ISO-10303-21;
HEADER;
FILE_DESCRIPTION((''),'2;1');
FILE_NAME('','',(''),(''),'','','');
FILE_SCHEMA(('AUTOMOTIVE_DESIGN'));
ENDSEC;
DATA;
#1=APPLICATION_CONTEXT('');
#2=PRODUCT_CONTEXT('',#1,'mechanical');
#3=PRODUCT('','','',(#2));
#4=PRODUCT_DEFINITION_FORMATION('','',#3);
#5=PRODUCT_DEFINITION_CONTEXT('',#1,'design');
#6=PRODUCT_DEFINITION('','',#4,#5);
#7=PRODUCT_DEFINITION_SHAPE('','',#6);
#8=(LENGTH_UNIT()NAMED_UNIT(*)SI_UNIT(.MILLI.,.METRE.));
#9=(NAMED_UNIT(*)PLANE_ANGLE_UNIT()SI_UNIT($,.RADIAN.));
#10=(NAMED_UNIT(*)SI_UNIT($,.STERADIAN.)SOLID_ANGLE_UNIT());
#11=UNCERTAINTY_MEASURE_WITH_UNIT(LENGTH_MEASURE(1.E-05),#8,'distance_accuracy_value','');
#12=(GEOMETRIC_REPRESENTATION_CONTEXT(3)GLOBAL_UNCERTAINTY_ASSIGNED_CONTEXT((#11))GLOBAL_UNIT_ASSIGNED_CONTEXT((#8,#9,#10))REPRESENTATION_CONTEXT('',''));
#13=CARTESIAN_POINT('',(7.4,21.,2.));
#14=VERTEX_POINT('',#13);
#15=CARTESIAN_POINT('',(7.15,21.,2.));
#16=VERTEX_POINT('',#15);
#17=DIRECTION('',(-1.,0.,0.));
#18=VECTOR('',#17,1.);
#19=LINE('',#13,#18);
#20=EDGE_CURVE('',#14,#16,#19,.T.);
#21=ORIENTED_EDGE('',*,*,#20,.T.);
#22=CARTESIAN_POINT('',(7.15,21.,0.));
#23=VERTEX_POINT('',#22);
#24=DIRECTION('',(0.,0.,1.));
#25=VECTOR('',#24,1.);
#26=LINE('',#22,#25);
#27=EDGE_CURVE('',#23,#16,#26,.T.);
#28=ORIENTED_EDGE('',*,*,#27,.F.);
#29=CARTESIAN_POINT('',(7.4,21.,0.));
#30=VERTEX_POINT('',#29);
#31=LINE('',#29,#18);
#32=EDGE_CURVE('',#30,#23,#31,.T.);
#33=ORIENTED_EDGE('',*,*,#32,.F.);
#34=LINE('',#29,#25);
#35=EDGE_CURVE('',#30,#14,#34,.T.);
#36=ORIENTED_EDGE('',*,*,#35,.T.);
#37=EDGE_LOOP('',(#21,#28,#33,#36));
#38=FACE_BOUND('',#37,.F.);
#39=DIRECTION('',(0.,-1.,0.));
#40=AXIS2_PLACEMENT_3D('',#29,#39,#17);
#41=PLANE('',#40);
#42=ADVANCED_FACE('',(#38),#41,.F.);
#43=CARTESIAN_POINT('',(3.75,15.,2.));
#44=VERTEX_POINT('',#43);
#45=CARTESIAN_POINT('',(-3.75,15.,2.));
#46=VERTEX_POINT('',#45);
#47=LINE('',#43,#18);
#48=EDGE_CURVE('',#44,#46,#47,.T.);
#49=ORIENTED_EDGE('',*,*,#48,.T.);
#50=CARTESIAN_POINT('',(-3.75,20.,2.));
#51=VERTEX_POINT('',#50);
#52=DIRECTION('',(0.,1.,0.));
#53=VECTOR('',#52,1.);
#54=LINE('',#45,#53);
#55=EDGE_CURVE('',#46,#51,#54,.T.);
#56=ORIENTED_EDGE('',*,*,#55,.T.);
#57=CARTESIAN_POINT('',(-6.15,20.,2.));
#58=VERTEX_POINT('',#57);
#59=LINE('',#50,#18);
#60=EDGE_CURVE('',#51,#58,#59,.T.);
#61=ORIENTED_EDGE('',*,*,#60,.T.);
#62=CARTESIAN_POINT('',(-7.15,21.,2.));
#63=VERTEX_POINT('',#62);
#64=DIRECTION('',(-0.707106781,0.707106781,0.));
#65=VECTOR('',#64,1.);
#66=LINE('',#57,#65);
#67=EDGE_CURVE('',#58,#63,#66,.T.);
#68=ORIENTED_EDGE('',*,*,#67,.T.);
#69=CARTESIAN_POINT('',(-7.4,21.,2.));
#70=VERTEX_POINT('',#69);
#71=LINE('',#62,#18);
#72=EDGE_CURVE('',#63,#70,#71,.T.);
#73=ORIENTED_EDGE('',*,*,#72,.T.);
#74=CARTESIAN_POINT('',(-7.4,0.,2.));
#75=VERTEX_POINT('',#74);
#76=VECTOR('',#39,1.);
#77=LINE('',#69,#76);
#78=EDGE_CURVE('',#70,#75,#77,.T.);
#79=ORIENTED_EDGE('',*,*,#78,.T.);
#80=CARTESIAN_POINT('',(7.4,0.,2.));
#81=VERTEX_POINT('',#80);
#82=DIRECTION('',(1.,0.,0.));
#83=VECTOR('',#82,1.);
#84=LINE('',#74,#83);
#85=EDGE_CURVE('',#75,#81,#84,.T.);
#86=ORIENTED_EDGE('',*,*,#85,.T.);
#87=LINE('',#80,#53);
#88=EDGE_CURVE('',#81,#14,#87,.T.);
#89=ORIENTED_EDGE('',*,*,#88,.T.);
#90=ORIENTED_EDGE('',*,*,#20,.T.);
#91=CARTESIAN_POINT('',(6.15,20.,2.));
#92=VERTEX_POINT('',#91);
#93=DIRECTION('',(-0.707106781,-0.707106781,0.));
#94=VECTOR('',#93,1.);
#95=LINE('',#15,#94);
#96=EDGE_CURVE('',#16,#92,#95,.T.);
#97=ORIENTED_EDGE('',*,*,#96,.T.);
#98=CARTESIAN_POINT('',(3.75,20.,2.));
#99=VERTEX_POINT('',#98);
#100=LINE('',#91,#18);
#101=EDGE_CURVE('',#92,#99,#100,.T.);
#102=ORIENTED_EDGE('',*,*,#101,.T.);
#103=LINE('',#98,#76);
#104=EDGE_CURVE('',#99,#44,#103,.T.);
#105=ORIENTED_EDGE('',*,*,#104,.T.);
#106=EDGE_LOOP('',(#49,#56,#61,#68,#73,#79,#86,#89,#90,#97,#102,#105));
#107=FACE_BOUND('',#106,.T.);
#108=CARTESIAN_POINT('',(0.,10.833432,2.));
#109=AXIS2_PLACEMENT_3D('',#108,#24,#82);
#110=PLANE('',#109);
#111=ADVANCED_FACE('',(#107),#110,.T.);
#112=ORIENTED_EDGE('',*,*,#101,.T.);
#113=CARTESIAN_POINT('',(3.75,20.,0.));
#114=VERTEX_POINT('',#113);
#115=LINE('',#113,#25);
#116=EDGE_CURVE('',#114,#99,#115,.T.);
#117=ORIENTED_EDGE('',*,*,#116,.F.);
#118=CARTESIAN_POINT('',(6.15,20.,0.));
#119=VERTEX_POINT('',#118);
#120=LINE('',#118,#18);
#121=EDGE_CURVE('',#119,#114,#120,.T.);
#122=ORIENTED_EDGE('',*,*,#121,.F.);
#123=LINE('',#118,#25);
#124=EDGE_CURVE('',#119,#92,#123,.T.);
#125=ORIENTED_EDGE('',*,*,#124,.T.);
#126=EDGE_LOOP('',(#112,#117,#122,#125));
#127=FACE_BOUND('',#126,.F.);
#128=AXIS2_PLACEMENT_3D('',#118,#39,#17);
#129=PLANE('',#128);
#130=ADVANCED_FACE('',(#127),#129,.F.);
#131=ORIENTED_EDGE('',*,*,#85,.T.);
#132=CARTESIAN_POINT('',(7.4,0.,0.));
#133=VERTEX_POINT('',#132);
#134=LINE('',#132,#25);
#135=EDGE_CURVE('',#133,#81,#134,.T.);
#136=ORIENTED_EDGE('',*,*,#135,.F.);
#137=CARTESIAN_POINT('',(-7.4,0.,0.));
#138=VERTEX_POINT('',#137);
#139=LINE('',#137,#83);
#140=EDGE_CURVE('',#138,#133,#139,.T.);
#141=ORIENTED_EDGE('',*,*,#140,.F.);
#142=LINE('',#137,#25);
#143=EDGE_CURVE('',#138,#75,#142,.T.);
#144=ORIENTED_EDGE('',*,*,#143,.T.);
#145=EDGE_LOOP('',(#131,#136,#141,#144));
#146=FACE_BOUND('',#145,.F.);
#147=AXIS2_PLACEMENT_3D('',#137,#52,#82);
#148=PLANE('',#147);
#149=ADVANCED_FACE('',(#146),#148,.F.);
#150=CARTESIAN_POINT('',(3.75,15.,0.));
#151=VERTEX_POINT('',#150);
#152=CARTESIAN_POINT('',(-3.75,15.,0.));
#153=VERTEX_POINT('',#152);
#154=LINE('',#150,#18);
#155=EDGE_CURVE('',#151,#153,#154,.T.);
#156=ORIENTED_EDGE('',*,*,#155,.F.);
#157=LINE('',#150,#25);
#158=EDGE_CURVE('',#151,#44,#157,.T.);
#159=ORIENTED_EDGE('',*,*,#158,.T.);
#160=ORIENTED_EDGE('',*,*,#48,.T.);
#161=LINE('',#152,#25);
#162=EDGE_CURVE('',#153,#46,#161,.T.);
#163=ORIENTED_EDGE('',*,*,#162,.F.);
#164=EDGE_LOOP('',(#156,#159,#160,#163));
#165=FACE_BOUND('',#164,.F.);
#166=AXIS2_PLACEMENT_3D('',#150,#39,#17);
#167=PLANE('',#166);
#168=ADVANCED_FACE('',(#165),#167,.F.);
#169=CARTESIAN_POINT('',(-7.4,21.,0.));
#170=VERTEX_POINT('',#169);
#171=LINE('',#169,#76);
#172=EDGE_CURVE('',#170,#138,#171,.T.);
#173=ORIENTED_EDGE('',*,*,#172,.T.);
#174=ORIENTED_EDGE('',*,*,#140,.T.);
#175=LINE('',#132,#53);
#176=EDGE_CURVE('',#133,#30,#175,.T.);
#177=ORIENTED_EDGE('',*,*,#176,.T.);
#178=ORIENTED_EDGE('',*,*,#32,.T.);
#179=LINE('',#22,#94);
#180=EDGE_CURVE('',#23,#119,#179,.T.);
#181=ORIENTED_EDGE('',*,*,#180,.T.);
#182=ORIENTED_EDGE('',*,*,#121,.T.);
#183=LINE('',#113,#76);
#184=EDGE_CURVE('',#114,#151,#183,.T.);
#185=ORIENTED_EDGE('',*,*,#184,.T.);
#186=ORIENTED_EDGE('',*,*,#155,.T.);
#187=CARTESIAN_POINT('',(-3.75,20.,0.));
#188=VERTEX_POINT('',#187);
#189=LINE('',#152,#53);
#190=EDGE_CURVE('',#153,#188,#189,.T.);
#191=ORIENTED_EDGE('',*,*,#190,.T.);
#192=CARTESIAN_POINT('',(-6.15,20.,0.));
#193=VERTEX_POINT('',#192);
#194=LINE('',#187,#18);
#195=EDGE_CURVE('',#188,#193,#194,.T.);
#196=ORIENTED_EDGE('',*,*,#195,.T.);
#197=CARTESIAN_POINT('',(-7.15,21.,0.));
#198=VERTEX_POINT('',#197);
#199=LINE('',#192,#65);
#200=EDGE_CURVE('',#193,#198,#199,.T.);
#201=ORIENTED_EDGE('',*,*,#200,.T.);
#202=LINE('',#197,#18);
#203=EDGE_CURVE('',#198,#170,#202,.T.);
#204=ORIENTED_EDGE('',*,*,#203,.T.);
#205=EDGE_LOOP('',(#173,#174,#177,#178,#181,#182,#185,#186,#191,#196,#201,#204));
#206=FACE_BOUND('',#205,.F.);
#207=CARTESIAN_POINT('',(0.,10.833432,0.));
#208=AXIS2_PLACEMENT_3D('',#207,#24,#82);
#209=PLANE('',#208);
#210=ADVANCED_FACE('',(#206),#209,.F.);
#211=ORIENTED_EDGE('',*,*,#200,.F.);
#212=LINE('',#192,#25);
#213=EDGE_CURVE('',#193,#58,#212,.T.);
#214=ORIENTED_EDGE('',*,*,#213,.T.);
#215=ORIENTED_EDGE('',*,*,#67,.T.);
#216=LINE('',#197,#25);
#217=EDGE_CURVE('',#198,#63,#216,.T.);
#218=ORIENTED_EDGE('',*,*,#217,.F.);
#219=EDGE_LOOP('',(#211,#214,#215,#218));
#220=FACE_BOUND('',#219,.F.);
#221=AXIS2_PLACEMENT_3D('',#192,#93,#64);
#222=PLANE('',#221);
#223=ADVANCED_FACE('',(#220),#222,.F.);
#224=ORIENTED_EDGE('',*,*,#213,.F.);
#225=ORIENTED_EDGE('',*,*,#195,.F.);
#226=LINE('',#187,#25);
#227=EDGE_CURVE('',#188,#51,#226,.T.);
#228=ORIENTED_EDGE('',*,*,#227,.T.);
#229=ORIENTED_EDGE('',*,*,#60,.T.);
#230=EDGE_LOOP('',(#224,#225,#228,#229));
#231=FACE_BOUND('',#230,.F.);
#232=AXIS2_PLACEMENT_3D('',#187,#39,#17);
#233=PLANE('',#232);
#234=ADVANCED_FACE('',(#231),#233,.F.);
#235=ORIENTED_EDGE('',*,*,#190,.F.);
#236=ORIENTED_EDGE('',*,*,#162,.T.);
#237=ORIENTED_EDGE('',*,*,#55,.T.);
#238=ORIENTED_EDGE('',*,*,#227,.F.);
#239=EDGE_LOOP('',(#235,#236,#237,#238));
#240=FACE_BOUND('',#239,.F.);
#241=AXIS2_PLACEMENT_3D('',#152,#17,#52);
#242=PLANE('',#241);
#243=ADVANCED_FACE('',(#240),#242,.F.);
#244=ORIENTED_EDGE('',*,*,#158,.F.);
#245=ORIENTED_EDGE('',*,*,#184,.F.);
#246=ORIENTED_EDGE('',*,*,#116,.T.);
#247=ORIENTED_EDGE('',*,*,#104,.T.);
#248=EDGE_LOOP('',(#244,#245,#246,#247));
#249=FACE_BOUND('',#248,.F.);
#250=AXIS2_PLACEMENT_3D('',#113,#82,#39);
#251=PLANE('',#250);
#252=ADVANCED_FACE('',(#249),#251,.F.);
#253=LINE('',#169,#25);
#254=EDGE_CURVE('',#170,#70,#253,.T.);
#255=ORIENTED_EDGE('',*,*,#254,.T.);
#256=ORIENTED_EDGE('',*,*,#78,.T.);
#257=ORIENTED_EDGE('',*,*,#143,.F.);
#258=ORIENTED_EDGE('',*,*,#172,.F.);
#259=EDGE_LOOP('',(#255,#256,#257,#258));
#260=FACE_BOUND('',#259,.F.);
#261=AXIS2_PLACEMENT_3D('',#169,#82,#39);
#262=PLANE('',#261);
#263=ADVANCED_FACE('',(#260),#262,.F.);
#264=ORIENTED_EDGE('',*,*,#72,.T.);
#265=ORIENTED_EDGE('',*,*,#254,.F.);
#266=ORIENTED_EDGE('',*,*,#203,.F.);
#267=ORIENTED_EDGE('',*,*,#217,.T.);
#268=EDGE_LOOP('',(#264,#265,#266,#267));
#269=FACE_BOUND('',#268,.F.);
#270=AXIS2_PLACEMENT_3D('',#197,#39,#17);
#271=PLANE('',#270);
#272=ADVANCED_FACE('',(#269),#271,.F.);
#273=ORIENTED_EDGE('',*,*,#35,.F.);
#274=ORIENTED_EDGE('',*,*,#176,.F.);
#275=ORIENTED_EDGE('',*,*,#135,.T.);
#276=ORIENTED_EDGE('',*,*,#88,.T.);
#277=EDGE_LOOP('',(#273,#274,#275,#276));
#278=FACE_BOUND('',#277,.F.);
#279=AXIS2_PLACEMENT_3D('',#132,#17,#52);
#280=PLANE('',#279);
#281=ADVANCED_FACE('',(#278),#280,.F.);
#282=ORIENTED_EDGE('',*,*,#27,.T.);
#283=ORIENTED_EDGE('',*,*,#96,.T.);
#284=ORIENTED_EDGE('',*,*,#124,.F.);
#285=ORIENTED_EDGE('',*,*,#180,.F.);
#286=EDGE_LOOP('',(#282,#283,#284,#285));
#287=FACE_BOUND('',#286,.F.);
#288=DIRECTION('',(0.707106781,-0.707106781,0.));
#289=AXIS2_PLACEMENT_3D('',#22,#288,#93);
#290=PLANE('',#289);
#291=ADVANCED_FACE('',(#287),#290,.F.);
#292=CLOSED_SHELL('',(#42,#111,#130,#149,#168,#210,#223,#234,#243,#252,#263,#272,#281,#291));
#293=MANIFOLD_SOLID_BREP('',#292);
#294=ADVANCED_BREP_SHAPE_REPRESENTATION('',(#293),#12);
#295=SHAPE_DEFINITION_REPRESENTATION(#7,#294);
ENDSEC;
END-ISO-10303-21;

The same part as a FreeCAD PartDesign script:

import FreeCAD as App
import Part
import Sketcher
Q = App.Units.Quantity

doc = App.newDocument("Part")
body = doc.addObject("PartDesign::Body", "Body")

# Sketch on XY plane
sketch1 = doc.addObject("Sketcher::SketchObject", "Sketch")
body.addObject(sketch1)
sketch1.AttachmentSupport = (doc.XY_Plane, [""])
sketch1.MapMode = "FlatFace"
sketch1.addGeometry(Part.LineSegment(App.Vector(-7.4, 0, 0), App.Vector(7.4, 0, 0)), False)
sketch1.addGeometry(Part.LineSegment(App.Vector(7.4, 0, 0), App.Vector(7.4, 21, 0)), False)
sketch1.addGeometry(Part.LineSegment(App.Vector(7.4, 21, 0), App.Vector(7.15, 21, 0)), False)
sketch1.addGeometry(Part.LineSegment(App.Vector(7.15, 21, 0), App.Vector(6.15, 20, 0)), False)
sketch1.addGeometry(Part.LineSegment(App.Vector(6.15, 20, 0), App.Vector(3.75, 20, 0)), False)
sketch1.addGeometry(Part.LineSegment(App.Vector(3.75, 20, 0), App.Vector(3.75, 15, 0)), False)
sketch1.addGeometry(Part.LineSegment(App.Vector(3.75, 15, 0), App.Vector(-3.75, 15, 0)), False)
sketch1.addGeometry(Part.LineSegment(App.Vector(-3.75, 15, 0), App.Vector(-3.75, 20, 0)), False)
sketch1.addGeometry(Part.LineSegment(App.Vector(-3.75, 20, 0), App.Vector(-6.15, 20, 0)), False)
sketch1.addGeometry(Part.LineSegment(App.Vector(-6.15, 20, 0), App.Vector(-7.15, 21, 0)), False)
sketch1.addGeometry(Part.LineSegment(App.Vector(-7.15, 21, 0), App.Vector(-7.4, 21, 0)), False)
sketch1.addGeometry(Part.LineSegment(App.Vector(-7.4, 21, 0), App.Vector(-7.4, 0, 0)), False)
sketch1.addConstraint(Sketcher.Constraint("Coincident", 0, 2, 1, 1))
sketch1.addConstraint(Sketcher.Constraint("Coincident", 1, 2, 2, 1))
sketch1.addConstraint(Sketcher.Constraint("Coincident", 2, 2, 3, 1))
sketch1.addConstraint(Sketcher.Constraint("Coincident", 3, 2, 4, 1))
sketch1.addConstraint(Sketcher.Constraint("Coincident", 4, 2, 5, 1))
sketch1.addConstraint(Sketcher.Constraint("Coincident", 5, 2, 6, 1))
sketch1.addConstraint(Sketcher.Constraint("Coincident", 6, 2, 7, 1))
sketch1.addConstraint(Sketcher.Constraint("Coincident", 7, 2, 8, 1))
sketch1.addConstraint(Sketcher.Constraint("Coincident", 8, 2, 9, 1))
sketch1.addConstraint(Sketcher.Constraint("Coincident", 9, 2, 10, 1))
sketch1.addConstraint(Sketcher.Constraint("Coincident", 10, 2, 11, 1))
sketch1.addConstraint(Sketcher.Constraint("Coincident", 11, 2, 0, 1))
sketch1.addConstraint(Sketcher.Constraint("Horizontal", 0))
sketch1.addConstraint(Sketcher.Constraint("Vertical", 1))
sketch1.addConstraint(Sketcher.Constraint("Horizontal", 2))
sketch1.addConstraint(Sketcher.Constraint("Horizontal", 4))
sketch1.addConstraint(Sketcher.Constraint("Vertical", 5))
sketch1.addConstraint(Sketcher.Constraint("Horizontal", 6))
sketch1.addConstraint(Sketcher.Constraint("Vertical", 7))
sketch1.addConstraint(Sketcher.Constraint("Horizontal", 8))
sketch1.addConstraint(Sketcher.Constraint("Horizontal", 10))
sketch1.addConstraint(Sketcher.Constraint("Vertical", 11))
sketch1.addConstraint(Sketcher.Constraint("Symmetric", 0, 2, 11, 2, -1, 1))
sketch1.addConstraint(Sketcher.Constraint("Symmetric", 4, 2, 7, 2, -2))
sketch1.addConstraint(Sketcher.Constraint("Symmetric", 2, 2, 9, 2, -2))
sketch1.addConstraint(Sketcher.Constraint("Perpendicular", 3, 9))
sketch1.addConstraint(Sketcher.Constraint("Equal", 4, 8))
sketch1.addConstraint(Sketcher.Constraint("DistanceY", 1, 1, 1, 2, Q("21 mm")))
sketch1.addConstraint(Sketcher.Constraint("DistanceY", 5, 2, 5, 1, Q("5 mm")))
sketch1.addConstraint(Sketcher.Constraint("DistanceX", 0, 1, 0, 2, Q("14.8 mm")))
sketch1.addConstraint(Sketcher.Constraint("DistanceX", 4, 2, 4, 1, Q("2.4 mm")))
sketch1.addConstraint(Sketcher.Constraint("DistanceX", 6, 2, 6, 1, Q("7.5 mm")))
sketch1.addConstraint(Sketcher.Constraint("DistanceY", -1, 1, 3, 2, Q("20 mm")))
pad1 = doc.addObject("PartDesign::Pad", "Pad")
body.addObject(pad1)
pad1.Profile = sketch1
pad1.Length = 2

doc.recompute()
